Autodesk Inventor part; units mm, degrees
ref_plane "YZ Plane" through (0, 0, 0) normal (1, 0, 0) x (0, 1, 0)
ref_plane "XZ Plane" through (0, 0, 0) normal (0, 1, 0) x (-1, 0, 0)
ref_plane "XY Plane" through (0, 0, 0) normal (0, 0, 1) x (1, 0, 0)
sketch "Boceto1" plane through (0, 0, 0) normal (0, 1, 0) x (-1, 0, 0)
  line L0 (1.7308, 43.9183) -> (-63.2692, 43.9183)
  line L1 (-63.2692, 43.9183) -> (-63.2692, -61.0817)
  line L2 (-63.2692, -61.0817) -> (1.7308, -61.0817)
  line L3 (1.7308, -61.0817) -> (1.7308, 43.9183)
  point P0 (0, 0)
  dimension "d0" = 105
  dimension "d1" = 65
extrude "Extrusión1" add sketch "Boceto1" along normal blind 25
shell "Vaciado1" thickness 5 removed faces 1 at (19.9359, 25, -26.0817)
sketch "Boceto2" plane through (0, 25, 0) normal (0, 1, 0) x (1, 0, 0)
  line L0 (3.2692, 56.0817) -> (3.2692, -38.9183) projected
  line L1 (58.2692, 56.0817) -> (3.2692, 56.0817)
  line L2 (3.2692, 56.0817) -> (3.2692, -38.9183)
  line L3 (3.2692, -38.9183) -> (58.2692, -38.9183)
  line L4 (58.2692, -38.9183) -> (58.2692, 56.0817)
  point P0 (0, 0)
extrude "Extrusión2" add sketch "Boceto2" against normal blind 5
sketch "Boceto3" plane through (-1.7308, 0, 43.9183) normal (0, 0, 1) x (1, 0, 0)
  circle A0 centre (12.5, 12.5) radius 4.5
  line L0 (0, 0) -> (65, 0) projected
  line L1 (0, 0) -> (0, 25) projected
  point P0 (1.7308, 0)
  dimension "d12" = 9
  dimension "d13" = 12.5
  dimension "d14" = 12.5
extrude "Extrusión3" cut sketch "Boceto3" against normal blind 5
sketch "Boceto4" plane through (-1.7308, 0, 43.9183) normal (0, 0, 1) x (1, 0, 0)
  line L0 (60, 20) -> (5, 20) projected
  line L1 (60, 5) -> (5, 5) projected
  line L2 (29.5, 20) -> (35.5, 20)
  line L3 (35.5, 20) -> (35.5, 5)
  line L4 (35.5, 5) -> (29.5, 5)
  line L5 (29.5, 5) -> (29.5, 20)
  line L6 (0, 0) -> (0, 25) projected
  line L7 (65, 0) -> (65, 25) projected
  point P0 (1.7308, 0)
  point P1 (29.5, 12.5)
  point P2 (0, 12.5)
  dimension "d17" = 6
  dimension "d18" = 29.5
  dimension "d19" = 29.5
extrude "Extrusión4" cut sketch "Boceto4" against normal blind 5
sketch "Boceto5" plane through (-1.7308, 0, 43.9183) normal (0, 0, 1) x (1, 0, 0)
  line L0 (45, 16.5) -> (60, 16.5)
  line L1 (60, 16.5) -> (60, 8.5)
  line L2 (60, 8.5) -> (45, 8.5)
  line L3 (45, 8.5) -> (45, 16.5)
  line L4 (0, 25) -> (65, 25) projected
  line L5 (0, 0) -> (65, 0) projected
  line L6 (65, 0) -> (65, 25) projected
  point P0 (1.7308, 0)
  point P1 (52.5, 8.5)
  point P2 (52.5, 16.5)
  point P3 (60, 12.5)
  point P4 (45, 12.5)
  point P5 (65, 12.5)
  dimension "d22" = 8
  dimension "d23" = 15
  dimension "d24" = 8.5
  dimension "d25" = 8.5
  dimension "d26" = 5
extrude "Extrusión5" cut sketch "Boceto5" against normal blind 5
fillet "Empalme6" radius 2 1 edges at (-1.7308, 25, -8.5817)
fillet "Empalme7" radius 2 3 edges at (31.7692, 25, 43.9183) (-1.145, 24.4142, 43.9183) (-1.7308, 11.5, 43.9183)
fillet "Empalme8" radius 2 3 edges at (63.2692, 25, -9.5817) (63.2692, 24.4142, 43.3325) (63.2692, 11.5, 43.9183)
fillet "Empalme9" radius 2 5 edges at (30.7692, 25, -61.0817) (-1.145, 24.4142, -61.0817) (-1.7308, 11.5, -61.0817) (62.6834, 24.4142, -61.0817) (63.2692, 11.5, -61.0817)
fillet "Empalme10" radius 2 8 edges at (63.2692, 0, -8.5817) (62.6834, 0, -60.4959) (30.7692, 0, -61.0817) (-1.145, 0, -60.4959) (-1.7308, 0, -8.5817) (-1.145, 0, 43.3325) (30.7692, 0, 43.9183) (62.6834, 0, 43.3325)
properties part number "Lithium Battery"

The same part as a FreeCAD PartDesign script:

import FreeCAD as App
import Part
import Sketcher

V = App.Vector


def edges_at(feature, points):
    """Names of the edges that pass closest to the given points."""
    edges = feature.Shape.Edges
    near = lambda p: min(range(len(edges)), key=lambda i: edges[i].distToShape(Part.Vertex(*p))[0])
    return sorted({f"Edge{near(p) + 1}" for p in points})


def faces_at(feature, points):
    """Names of the faces that lie closest to the given points."""
    faces = feature.Shape.Faces
    near = lambda p: min(range(len(faces)), key=lambda i: faces[i].distToShape(Part.Vertex(*p))[0])
    return sorted({f"Face{near(p) + 1}" for p in points})


def add_polygon(sketch, points):
    """Adds a closed chain of lines whose ends are joined by coincident constraints."""
    first, n = sketch.GeometryCount, len(points)
    for a, b in zip(points, points[1:] + points[:1]):
        sketch.addGeometry(Part.LineSegment(App.Vector(*a, 0), App.Vector(*b, 0)), False)
    for i in range(n):
        sketch.addConstraint(Sketcher.Constraint("Coincident", first + i, 2, first + (i + 1) % n, 1))

doc = App.newDocument("Part")
body = doc.addObject("PartDesign::Body", "Body")

sketch1 = doc.addObject("Sketcher::SketchObject", "Sketch")
body.addObject(sketch1)
sketch1.AttachmentSupport = (doc.XZ_Plane, [""])
sketch1.MapMode = "FlatFace"
add_polygon(sketch1, [(-2, -61), (-2, 44), (63, 44), (63, -61)])
sketch1.addConstraint(Sketcher.Constraint("Vertical", 0))
sketch1.addConstraint(Sketcher.Constraint("Horizontal", 1))
sketch1.addConstraint(Sketcher.Constraint("Vertical", 2))
sketch1.addConstraint(Sketcher.Constraint("Horizontal", 3))
sketch1.addConstraint(Sketcher.Constraint("DistanceX", 1, 1, 1, 2, 65.0))
sketch1.addConstraint(Sketcher.Constraint("DistanceY", 0, 1, 0, 2, 105.0))
sketch1.addConstraint(Sketcher.Constraint("DistanceX", 0, 2, -1, 1, 1.7308))
sketch1.addConstraint(Sketcher.Constraint("DistanceY", -1, 1, 0, 2, 43.9183))
pad1 = doc.addObject("PartDesign::Pad", "Pad")
body.addObject(pad1)
pad1.Profile = sketch1
pad1.Length = 25
pad1.Reversed = True
doc.recompute()

thickness = doc.addObject("PartDesign::Thickness", "Thickness")
body.addObject(thickness)
thickness.Base = (pad1, faces_at(pad1, [(19.936, 25, -26.082)]))
thickness.Value = 5
thickness.Reversed = True
thickness.Join = "Intersection"

sketch2 = doc.addObject("Sketcher::SketchObject", "Sketch001")
body.addObject(sketch2)
sketch2.AttachmentSupport = (doc.XZ_Plane, [""])
sketch2.MapMode = "FlatFace"
sketch2.AttachmentOffset = App.Placement(V(0, 0, -25), App.Rotation())
add_polygon(sketch2, [(58, -56), (3, -56), (3, 39), (58, 39)])
sketch2.addConstraint(Sketcher.Constraint("Horizontal", 0))
sketch2.addConstraint(Sketcher.Constraint("Vertical", 1))
sketch2.addConstraint(Sketcher.Constraint("Horizontal", 2))
sketch2.addConstraint(Sketcher.Constraint("Vertical", 3))
sketch2.addConstraint(Sketcher.Constraint("DistanceX", 0, 2, 0, 1, 55.0))
sketch2.addConstraint(Sketcher.Constraint("DistanceY", 1, 1, 1, 2, 95.0))
sketch2.addConstraint(Sketcher.Constraint("DistanceX", -1, 1, 0, 2, 3.2692))
sketch2.addConstraint(Sketcher.Constraint("DistanceY", 0, 2, -1, 1, 56.0817))
pad2 = doc.addObject("PartDesign::Pad", "Pad001")
body.addObject(pad2)
pad2.Profile = sketch2
pad2.Length = 5

sketch3 = doc.addObject("Sketcher::SketchObject", "Sketch002")
body.addObject(sketch3)
sketch3.AttachmentSupport = (doc.XY_Plane, [""])
sketch3.MapMode = "FlatFace"
sketch3.AttachmentOffset = App.Placement(V(0, 0, 43.9183), App.Rotation())
sketch3.addGeometry(Part.Circle(V(10.8, 12.5, 0), V(0, 0, 1), 4.5), False)
sketch3.addConstraint(Sketcher.Constraint("Diameter", 0, 9.0))
sketch3.addConstraint(Sketcher.Constraint("DistanceY", -1, 1, 0, 3, 12.5))
sketch3.addConstraint(Sketcher.Constraint("DistanceX", -1, 1, 0, 3, 10.7692))
pocket1 = doc.addObject("PartDesign::Pocket", "Pocket")
body.addObject(pocket1)
pocket1.Profile = sketch3
pocket1.Length = 5

sketch4 = doc.addObject("Sketcher::SketchObject", "Sketch003")
body.addObject(sketch4)
sketch4.AttachmentSupport = (doc.XY_Plane, [""])
sketch4.MapMode = "FlatFace"
sketch4.AttachmentOffset = App.Placement(V(0, 0, 43.9183), App.Rotation())
add_polygon(sketch4, [(34, 5), (34, 20), (28, 20), (28, 5)])
sketch4.addConstraint(Sketcher.Constraint("Vertical", 0))
sketch4.addConstraint(Sketcher.Constraint("Horizontal", 1))
sketch4.addConstraint(Sketcher.Constraint("Vertical", 2))
sketch4.addConstraint(Sketcher.Constraint("Horizontal", 3))
sketch4.addConstraint(Sketcher.Constraint("DistanceX", 1, 2, 1, 1, 6.0))
sketch4.addConstraint(Sketcher.Constraint("DistanceY", 0, 1, 0, 2, 15.0))
sketch4.addConstraint(Sketcher.Constraint("DistanceY", -1, 1, 0, 2, 20.0))
sketch4.addConstraint(Sketcher.Constraint("DistanceX", -1, 1, 0, 2, 33.7692))
pocket2 = doc.addObject("PartDesign::Pocket", "Pocket001")
body.addObject(pocket2)
pocket2.Profile = sketch4
pocket2.Length = 5

sketch5 = doc.addObject("Sketcher::SketchObject", "Sketch004")
body.addObject(sketch5)
sketch5.AttachmentSupport = (doc.XY_Plane, [""])
sketch5.MapMode = "FlatFace"
sketch5.AttachmentOffset = App.Placement(V(0, 0, 43.9183), App.Rotation())
add_polygon(sketch5, [(58, 16), (43, 16), (43, 8), (58, 8)])
sketch5.addConstraint(Sketcher.Constraint("Horizontal", 0))
sketch5.addConstraint(Sketcher.Constraint("Vertical", 1))
sketch5.addConstraint(Sketcher.Constraint("Horizontal", 2))
sketch5.addConstraint(Sketcher.Constraint("Vertical", 3))
sketch5.addConstraint(Sketcher.Constraint("DistanceX", 0, 2, 0, 1, 15.0))
sketch5.addConstraint(Sketcher.Constraint("DistanceY", 1, 2, 1, 1, 8.0))
sketch5.addConstraint(Sketcher.Constraint("DistanceY", -1, 1, 1, 2, 8.5))
sketch5.addConstraint(Sketcher.Constraint("DistanceX", -1, 1, 0, 2, 43.2692))
pocket3 = doc.addObject("PartDesign::Pocket", "Pocket002")
body.addObject(pocket3)
pocket3.Profile = sketch5
pocket3.Length = 5
doc.recompute()

fillet = doc.addObject("PartDesign::Fillet", "Fillet")
body.addObject(fillet)
fillet.Base = (pocket3, edges_at(pocket3, [(-1.731, 25, -8.582)]))
fillet.Radius = 2
doc.recompute()

fillet2 = doc.addObject("PartDesign::Fillet", "Fillet001")
body.addObject(fillet2)
fillet2.Base = (fillet, edges_at(fillet, [(31.769, 25, 43.918), (-1.145, 24.414, 43.918), (-1.731, 11.5, 43.918)]))
fillet2.Radius = 2
doc.recompute()

fillet3 = doc.addObject("PartDesign::Fillet", "Fillet002")
body.addObject(fillet3)
fillet3.Base = (fillet2, edges_at(fillet2, [(63.269, 25, -9.582), (63.269, 24.414, 43.333), (63.269, 11.5, 43.918)]))
fillet3.Radius = 2
doc.recompute()

fillet4 = doc.addObject("PartDesign::Fillet", "Fillet003")
body.addObject(fillet4)
fillet4.Base = (fillet3, edges_at(fillet3, [
    (30.769, 25, -61.082),
    (-1.145, 24.414, -61.082),
    (-1.731, 11.5, -61.082),
    (62.683, 24.414, -61.082),
    (63.269, 11.5, -61.082),
]))
fillet4.Radius = 2
doc.recompute()

fillet5 = doc.addObject("PartDesign::Fillet", "Fillet004")
body.addObject(fillet5)
fillet5.Base = (fillet4, edges_at(fillet4, [
    (63.269, 0, -8.582),
    (62.683, 0, -60.496),
    (30.769, 0, -61.082),
    (-1.145, 0, -60.496),
    (-1.731, 0, -8.582),
    (-1.145, 0, 43.333),
    (30.769, 0, 43.918),
    (62.683, 0, 43.333),
]))
fillet5.Radius = 2

doc.recompute()
